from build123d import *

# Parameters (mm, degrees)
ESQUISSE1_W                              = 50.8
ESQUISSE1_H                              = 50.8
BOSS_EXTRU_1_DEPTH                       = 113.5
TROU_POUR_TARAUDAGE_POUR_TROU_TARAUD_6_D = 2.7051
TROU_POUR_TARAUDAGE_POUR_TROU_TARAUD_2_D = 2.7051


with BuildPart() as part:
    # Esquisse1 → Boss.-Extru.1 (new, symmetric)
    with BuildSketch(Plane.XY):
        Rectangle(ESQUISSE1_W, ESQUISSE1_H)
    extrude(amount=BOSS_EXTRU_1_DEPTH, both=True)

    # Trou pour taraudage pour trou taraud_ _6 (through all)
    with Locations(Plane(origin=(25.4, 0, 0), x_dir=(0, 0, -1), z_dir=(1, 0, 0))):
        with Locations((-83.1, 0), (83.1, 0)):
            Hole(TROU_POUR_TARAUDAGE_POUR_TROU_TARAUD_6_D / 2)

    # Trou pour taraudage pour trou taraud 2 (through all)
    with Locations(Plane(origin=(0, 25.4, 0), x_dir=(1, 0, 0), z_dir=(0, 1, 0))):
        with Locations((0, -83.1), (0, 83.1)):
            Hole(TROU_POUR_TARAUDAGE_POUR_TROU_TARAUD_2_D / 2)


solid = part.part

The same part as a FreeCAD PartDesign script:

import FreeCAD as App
import Part
import Sketcher


def add_polygon(sketch, points):
    """Adds a closed chain of lines whose ends are joined by coincident constraints."""
    first, n = sketch.GeometryCount, len(points)
    for a, b in zip(points, points[1:] + points[:1]):
        sketch.addGeometry(Part.LineSegment(App.Vector(*a, 0), App.Vector(*b, 0)), False)
    for i in range(n):
        sketch.addConstraint(Sketcher.Constraint("Coincident", first + i, 2, first + (i + 1) % n, 1))

doc = App.newDocument("Part")
body = doc.addObject("PartDesign::Body", "Body")

# Sketch on XY plane
sketch1 = body.newObject("Sketcher::SketchObject", "Sketch")
sketch1.AttachmentSupport = (doc.getObject("XY_Plane"), [""])
sketch1.MapMode = "FlatFace"
add_polygon(sketch1, [(-25, 25), (-25, -25), (25, -25), (25, 25)])  # lines 0-3
sketch1.addConstraint([
    Sketcher.Constraint("Vertical", 0),
    Sketcher.Constraint("Horizontal", 1),
    Sketcher.Constraint("Vertical", 2),
    Sketcher.Constraint("Horizontal", 3),
    Sketcher.Constraint("Symmetric", 0, 2, 2, 2, -1, 1),
    Sketcher.Constraint("Equal", 3, 0),
    Sketcher.Constraint("DistanceX", 1, 1, 1, 2, 50.8),
])
pad1 = body.newObject("PartDesign::Pad", "Pad")
pad1.Profile = sketch1
pad1.Length = 227
pad1.Midplane = True

# Sketch on YZ plane
sketch2 = body.newObject("Sketcher::SketchObject", "Sketch001")
sketch2.AttachmentSupport = (doc.getObject("YZ_Plane"), [""])
sketch2.MapMode = "FlatFace"
sketch2.AttachmentOffset = App.Placement(App.Vector(0, 0, 25.4), App.Rotation())
sketch2.addGeometry([
    Part.Circle(App.Vector(0, 83.1, 0), App.Vector(0, 0, 1), 1.4),
    Part.Circle(App.Vector(0, -83.1, 0), App.Vector(0, 0, 1), 1.4),
], False)
sketch2.addConstraint([
    Sketcher.Constraint("Equal", 0, 1),
    Sketcher.Constraint("Symmetric", 0, 3, 1, 3, -1, 1),
    Sketcher.Constraint("PointOnObject", 0, 3, -2),
    Sketcher.Constraint("Diameter", 0, 2.7051),
    Sketcher.Constraint("DistanceY", -1, 1, 0, 3, 83.1),
])
doc.recompute()
hole = body.newObject("PartDesign::Hole", "Hole")
hole.Profile = sketch2
hole.ThreadType = "None"
hole.Diameter = 2.7051
hole.DepthType = "ThroughAll"

# Sketch on XZ plane
sketch3 = body.newObject("Sketcher::SketchObject", "Sketch002")
sketch3.AttachmentSupport = (doc.getObject("XZ_Plane"), [""])
sketch3.MapMode = "FlatFace"
sketch3.AttachmentOffset = App.Placement(App.Vector(0, 0, -25.4), App.Rotation())
sketch3.addGeometry([
    Part.Circle(App.Vector(0, 83.1, 0), App.Vector(0, 0, 1), 1.4),
    Part.Circle(App.Vector(0, -83.1, 0), App.Vector(0, 0, 1), 1.4),
], False)
sketch3.addConstraint([
    Sketcher.Constraint("Equal", 0, 1),
    Sketcher.Constraint("Symmetric", 0, 3, 1, 3, -1, 1),
    Sketcher.Constraint("PointOnObject", 0, 3, -2),
    Sketcher.Constraint("Diameter", 0, 2.7051),
    Sketcher.Constraint("DistanceY", -1, 1, 0, 3, 83.1),
])
doc.recompute()
hole2 = body.newObject("PartDesign::Hole", "Hole001")
hole2.Profile = sketch3
hole2.ThreadType = "None"
hole2.Diameter = 2.7051
hole2.DepthType = "ThroughAll"
hole2.Reversed = True

doc.recompute()
